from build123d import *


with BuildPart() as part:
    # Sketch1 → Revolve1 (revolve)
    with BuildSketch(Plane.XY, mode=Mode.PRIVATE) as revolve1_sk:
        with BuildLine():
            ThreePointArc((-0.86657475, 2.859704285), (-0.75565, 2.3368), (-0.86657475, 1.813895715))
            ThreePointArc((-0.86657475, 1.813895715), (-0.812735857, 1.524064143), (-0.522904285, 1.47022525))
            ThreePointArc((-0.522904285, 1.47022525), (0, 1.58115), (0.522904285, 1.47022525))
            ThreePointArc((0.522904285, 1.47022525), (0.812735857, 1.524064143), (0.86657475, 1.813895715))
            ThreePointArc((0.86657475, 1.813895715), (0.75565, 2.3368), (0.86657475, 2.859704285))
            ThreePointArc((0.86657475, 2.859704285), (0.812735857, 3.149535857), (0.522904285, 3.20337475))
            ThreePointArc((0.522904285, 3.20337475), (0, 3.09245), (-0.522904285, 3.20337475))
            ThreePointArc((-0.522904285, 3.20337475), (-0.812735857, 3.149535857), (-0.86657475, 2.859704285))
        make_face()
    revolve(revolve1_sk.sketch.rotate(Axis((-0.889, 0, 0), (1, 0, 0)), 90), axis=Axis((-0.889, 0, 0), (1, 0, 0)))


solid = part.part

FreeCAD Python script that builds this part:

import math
import FreeCAD as App
import Part
import Sketcher
Q = App.Units.Quantity

doc = App.newDocument("Part")
body = doc.addObject("PartDesign::Body", "Body")

sketch1 = body.newObject("Sketcher::SketchObject", "Sketch")
sketch1.AttachmentSupport = (doc.getObject("XY_Plane"), [""])
sketch1.MapMode = "FlatFace"
sketch1.addGeometry([
    Part.ArcOfCircle(Part.Circle(App.Vector(-2.04361, 2.3368, 0), App.Vector(0, 0, 1), 1.28796), math.radians(-23.953452), math.radians(23.953452)),
    Part.ArcOfCircle(Part.Circle(App.Vector(-0.628618, 1.708182, 0), App.Vector(0, 0, 1), 0.260382), math.radians(156.046548), math.radians(293.953452)),
    Part.ArcOfCircle(Part.Circle(App.Vector(0, 0.29319, 0), App.Vector(0, 0, 1), 1.28796), math.radians(66.046548), math.radians(113.953452)),
    Part.ArcOfCircle(Part.Circle(App.Vector(0.628618, 1.708182, 0), App.Vector(0, 0, 1), 0.260382), math.radians(-113.953452), math.radians(23.953452)),
    Part.ArcOfCircle(Part.Circle(App.Vector(2.04361, 2.3368, 0), App.Vector(0, 0, 1), 1.28796), math.radians(156.046548), math.radians(203.953452)),
    Part.ArcOfCircle(Part.Circle(App.Vector(0.628618, 2.965418, 0), App.Vector(0, 0, 1), 0.260382), math.radians(-23.953452), math.radians(113.953452)),
    Part.ArcOfCircle(Part.Circle(App.Vector(0, 4.38041, 0), App.Vector(0, 0, 1), 1.28796), math.radians(-113.953452), math.radians(-66.046548)),
    Part.ArcOfCircle(Part.Circle(App.Vector(-0.628618, 2.965418, 0), App.Vector(0, 0, 1), 0.260382), math.radians(66.046548), math.radians(203.953452)),
], False)
sketch1.addConstraint([
    Sketcher.Constraint("Tangent", 0, 1, 1, 1),
    Sketcher.Constraint("Tangent", 1, 2, 2, 2),
    Sketcher.Constraint("Tangent", 2, 1, 3, 1),
    Sketcher.Constraint("Tangent", 3, 2, 4, 2),
    Sketcher.Constraint("Tangent", 4, 1, 5, 1),
    Sketcher.Constraint("Tangent", 5, 2, 6, 2),
    Sketcher.Constraint("Tangent", 6, 1, 7, 1),
    Sketcher.Constraint("Tangent", 7, 2, 0, 2),
    Sketcher.Constraint("Equal", 0, 2),
    Sketcher.Constraint("Equal", 1, 3),
    Sketcher.Constraint("Equal", 2, 4),
    Sketcher.Constraint("Equal", 3, 5),
    Sketcher.Constraint("Equal", 4, 6),
    Sketcher.Constraint("Equal", 5, 7),
    Sketcher.Constraint("Symmetric", 1, 3, 3, 3, -2),
    Sketcher.Constraint("Symmetric", 5, 3, 7, 3, -2),
    Sketcher.Constraint("Vertical", 3, 3, 5, 3),
    Sketcher.Constraint("Radius", 0, Q("1.28796 mm")),
    Sketcher.Constraint("Radius", 1, Q("0.260382 mm")),
    Sketcher.Constraint("DistanceY", -1, 1, 0, 3, Q("2.3368 mm")),
    Sketcher.Constraint("DistanceX", 0, 3, -1, 1, Q("2.04361 mm")),
    Sketcher.Constraint("DistanceY", -1, 1, 2, 3, Q("0.29319 mm")),
])
revolution = body.newObject("PartDesign::Revolution", "Revolution")
revolution.Profile = sketch1
revolution.ReferenceAxis = (sketch1, ["H_Axis"])
revolution.Angle = 360

doc.recompute()
